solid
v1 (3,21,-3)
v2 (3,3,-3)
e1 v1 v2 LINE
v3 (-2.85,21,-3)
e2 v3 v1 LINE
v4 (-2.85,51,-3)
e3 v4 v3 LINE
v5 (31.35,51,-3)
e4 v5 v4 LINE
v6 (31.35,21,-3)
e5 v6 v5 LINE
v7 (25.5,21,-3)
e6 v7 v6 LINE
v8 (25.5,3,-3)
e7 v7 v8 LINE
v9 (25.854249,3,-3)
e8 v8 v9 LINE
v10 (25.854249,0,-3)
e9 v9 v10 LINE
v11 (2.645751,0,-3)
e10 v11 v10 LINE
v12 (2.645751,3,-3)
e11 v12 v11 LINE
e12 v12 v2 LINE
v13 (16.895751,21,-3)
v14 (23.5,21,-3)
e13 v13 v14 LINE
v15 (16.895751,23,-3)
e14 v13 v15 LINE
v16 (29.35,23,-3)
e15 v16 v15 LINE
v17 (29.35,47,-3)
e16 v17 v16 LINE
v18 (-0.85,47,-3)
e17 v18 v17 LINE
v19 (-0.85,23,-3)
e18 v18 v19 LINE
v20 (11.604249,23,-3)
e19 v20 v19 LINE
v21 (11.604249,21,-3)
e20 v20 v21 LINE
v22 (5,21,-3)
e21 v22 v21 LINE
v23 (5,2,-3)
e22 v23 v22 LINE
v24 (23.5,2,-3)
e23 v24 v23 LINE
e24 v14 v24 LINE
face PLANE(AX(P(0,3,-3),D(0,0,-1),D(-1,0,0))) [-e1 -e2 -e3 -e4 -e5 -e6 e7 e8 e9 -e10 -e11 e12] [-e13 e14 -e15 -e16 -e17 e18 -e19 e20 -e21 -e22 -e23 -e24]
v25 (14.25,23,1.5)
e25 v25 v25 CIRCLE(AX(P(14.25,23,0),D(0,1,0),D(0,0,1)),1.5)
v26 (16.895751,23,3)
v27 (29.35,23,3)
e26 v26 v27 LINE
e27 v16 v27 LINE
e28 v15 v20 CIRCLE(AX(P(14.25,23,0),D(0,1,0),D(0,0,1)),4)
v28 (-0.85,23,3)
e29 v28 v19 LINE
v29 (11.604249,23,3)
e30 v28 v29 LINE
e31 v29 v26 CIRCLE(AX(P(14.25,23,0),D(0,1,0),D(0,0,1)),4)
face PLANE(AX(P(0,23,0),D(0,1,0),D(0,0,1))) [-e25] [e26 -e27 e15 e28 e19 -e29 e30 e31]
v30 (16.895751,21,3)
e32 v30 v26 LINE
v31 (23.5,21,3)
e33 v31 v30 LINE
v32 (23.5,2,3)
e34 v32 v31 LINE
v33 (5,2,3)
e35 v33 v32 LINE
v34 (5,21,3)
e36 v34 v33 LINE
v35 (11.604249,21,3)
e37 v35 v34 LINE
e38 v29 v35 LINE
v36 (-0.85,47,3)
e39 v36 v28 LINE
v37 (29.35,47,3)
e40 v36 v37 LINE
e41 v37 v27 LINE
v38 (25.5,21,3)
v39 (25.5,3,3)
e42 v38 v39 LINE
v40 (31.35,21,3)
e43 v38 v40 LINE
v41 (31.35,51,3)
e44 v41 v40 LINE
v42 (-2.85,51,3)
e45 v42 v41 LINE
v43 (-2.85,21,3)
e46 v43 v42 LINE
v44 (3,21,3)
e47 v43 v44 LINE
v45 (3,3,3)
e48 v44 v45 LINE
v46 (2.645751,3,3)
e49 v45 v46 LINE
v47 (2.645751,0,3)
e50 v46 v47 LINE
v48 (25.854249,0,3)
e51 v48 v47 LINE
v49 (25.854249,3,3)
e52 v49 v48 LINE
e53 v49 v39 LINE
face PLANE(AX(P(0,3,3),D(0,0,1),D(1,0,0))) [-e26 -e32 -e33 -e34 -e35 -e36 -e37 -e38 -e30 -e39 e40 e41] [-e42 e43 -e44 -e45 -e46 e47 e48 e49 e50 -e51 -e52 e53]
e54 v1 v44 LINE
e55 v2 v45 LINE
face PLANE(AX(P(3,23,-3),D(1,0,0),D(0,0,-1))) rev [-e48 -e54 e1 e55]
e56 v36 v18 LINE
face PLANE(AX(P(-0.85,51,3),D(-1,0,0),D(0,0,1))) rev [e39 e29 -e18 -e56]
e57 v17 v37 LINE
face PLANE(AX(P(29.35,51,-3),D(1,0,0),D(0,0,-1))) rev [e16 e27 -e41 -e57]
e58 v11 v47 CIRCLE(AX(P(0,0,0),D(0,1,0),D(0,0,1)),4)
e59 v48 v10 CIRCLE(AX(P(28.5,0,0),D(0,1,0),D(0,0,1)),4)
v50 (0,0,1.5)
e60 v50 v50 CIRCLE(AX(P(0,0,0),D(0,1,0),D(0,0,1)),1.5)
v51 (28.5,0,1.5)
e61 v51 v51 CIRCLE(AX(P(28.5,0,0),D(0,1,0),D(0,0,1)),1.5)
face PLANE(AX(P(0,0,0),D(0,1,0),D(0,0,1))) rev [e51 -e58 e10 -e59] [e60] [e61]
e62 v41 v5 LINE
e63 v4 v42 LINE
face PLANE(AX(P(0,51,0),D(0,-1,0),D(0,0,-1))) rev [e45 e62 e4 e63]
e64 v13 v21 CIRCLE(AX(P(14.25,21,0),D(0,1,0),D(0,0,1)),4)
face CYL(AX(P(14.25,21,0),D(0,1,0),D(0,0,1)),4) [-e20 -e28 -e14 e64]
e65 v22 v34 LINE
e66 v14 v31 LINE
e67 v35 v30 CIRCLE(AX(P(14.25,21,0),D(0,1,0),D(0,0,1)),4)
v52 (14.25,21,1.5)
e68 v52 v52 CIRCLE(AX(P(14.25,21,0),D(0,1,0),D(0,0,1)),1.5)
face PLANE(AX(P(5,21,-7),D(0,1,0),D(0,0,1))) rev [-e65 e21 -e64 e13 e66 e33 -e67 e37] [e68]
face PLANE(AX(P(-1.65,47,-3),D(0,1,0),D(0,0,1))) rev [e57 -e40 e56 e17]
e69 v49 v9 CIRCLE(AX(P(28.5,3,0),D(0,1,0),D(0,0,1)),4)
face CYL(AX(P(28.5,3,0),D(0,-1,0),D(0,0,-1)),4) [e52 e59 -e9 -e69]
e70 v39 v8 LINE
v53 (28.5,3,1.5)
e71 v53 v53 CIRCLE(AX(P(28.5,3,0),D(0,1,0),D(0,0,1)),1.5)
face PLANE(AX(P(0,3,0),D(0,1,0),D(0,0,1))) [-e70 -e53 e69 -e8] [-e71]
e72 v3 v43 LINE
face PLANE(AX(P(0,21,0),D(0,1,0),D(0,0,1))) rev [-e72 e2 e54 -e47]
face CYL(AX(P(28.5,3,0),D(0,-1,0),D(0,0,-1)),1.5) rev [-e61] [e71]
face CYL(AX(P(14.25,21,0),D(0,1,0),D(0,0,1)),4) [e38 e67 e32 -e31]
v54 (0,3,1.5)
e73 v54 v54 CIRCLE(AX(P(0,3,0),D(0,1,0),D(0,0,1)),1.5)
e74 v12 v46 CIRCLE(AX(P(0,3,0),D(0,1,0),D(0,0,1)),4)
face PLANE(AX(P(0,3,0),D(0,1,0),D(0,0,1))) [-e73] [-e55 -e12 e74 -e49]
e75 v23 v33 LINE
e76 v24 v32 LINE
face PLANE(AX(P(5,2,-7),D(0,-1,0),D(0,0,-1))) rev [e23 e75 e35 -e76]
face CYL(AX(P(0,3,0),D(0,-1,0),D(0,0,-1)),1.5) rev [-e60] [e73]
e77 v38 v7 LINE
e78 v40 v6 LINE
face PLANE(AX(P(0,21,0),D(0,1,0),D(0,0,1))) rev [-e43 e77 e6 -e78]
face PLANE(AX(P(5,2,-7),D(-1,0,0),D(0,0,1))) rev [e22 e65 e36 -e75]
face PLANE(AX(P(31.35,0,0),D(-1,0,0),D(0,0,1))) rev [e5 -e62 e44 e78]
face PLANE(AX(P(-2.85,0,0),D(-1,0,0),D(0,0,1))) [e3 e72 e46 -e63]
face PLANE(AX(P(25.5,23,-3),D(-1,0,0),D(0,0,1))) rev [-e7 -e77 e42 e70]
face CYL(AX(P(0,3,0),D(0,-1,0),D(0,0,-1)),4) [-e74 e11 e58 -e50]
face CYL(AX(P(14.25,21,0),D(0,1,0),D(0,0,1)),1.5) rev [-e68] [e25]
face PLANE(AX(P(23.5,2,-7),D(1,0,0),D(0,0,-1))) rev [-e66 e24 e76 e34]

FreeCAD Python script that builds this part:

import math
import FreeCAD as App
import Part
import Sketcher

V = App.Vector

doc = App.newDocument("Part")
body = doc.addObject("PartDesign::Body", "Body")

sketch1 = doc.addObject("Sketcher::SketchObject", "Sketch")
body.addObject(sketch1)
sketch1.AttachmentSupport = (doc.XZ_Plane, [""])
sketch1.MapMode = "FlatFace"
sketch1.addGeometry([
    Part.LineSegment(V(25.9, -3, 0), V(2.6, -3, 0)),
    Part.ArcOfCircle(Part.Circle(V(0, 0, 0), V(0, 0, 1), 4), math.radians(49), math.radians(311)),
    Part.LineSegment(V(2.6, 3, 0), V(25.9, 3, 0)),
    Part.ArcOfCircle(Part.Circle(V(28.5, 0, 0), V(0, 0, 1), 4), math.radians(-131), math.radians(131)),
    Part.Circle(V(28.5, 0, 0), V(0, 0, 1), 1.5),
    Part.Circle(V(0, 0, 0), V(0, 0, 1), 1.5),
], False)
sketch1.addConstraint([
    Sketcher.Constraint("Coincident", 0, 2, 1, 2),
    Sketcher.Constraint("Coincident", 1, 1, 2, 1),
    Sketcher.Constraint("Coincident", 2, 2, 3, 2),
    Sketcher.Constraint("Coincident", 3, 1, 0, 1),
    Sketcher.Constraint("Horizontal", 0),
    Sketcher.Constraint("Horizontal", 2),
    Sketcher.Constraint("Coincident", 1, 3, -1, 1),
    Sketcher.Constraint("Coincident", 5, 3, -1, 1),
    Sketcher.Constraint("Coincident", 4, 3, 3, 3),
    Sketcher.Constraint("Equal", 1, 3),
    Sketcher.Constraint("Equal", 4, 5),
    Sketcher.Constraint("Symmetric", 2, 2, 3, 1, -1),
    Sketcher.Constraint("Diameter", 4, 3.0),
    Sketcher.Constraint("Radius", 1, 4.0),
    Sketcher.Constraint("DistanceY", 0, 2, -1, 1, 3.0),
    Sketcher.Constraint("DistanceX", -1, 1, 3, 3, 28.5),
])
pad1 = doc.addObject("PartDesign::Pad", "Pad")
body.addObject(pad1)
pad1.Profile = sketch1
pad1.Length = 3
pad1.Reversed = True

sketch2 = doc.addObject("Sketcher::SketchObject", "Sketch001")
body.addObject(sketch2)
sketch2.AttachmentSupport = (doc.XZ_Plane, [""])
sketch2.MapMode = "FlatFace"
sketch2.AttachmentOffset = App.Placement(V(0, 0, -3), App.Rotation())
sketch2.addGeometry([
    Part.LineSegment(V(3, -3, 0), V(3, 3, 0)),
    Part.LineSegment(V(3, 3, 0), V(26, 3, 0)),
    Part.LineSegment(V(26, 3, 0), V(26, -3, 0)),
    Part.LineSegment(V(26, -3, 0), V(3, -3, 0)),
], False)
sketch2.addConstraint([
    Sketcher.Constraint("Coincident", 0, 2, 1, 1),
    Sketcher.Constraint("Coincident", 1, 2, 2, 1),
    Sketcher.Constraint("Coincident", 2, 2, 3, 1),
    Sketcher.Constraint("Coincident", 3, 2, 0, 1),
    Sketcher.Constraint("Vertical", 0),
    Sketcher.Constraint("Horizontal", 1),
    Sketcher.Constraint("Vertical", 2),
    Sketcher.Constraint("Horizontal", 3),
    Sketcher.Constraint("DistanceY", 0, 1, 0, 2, 6.0),
    Sketcher.Constraint("DistanceX", 1, 1, 1, 2, 22.5),
    Sketcher.Constraint("DistanceX", -1, 1, 0, 2, 3.0),
    Sketcher.Constraint("DistanceY", -1, 1, 0, 2, 3.0),
])
pad2 = doc.addObject("PartDesign::Pad", "Pad001")
body.addObject(pad2)
pad2.Profile = sketch2
pad2.Length = 20
pad2.Reversed = True

sketch3 = doc.addObject("Sketcher::SketchObject", "Sketch002")
body.addObject(sketch3)
sketch3.AttachmentSupport = (doc.XY_Plane, [""])
sketch3.MapMode = "FlatFace"
sketch3.AttachmentOffset = App.Placement(V(0, 0, 3), App.Rotation())
sketch3.addGeometry([
    Part.LineSegment(V(5, 21, 0), V(5, 2, 0)),
    Part.LineSegment(V(5, 2, 0), V(24, 2, 0)),
    Part.LineSegment(V(24, 2, 0), V(24, 21, 0)),
    Part.LineSegment(V(24, 21, 0), V(5, 21, 0)),
], False)
sketch3.addConstraint([
    Sketcher.Constraint("Coincident", 0, 2, 1, 1),
    Sketcher.Constraint("Coincident", 1, 2, 2, 1),
    Sketcher.Constraint("Coincident", 2, 2, 3, 1),
    Sketcher.Constraint("Coincident", 3, 2, 0, 1),
    Sketcher.Constraint("Vertical", 0),
    Sketcher.Constraint("Horizontal", 1),
    Sketcher.Constraint("Vertical", 2),
    Sketcher.Constraint("Horizontal", 3),
    Sketcher.Constraint("DistanceY", 0, 2, 0, 1, 19.0),
    Sketcher.Constraint("DistanceX", 1, 1, 1, 2, 18.5),
    Sketcher.Constraint("DistanceX", -1, 1, 0, 2, 5.0),
    Sketcher.Constraint("DistanceY", -1, 1, 0, 2, 2.0),
])
pocket1 = doc.addObject("PartDesign::Pocket", "Pocket")
body.addObject(pocket1)
pocket1.Profile = sketch3
pocket1.Length = 10

sketch4 = doc.addObject("Sketcher::SketchObject", "Sketch003")
body.addObject(sketch4)
sketch4.AttachmentSupport = (doc.XZ_Plane, [""])
sketch4.MapMode = "FlatFace"
sketch4.AttachmentOffset = App.Placement(V(0, 0, -23), App.Rotation())
sketch4.addGeometry([
    Part.LineSegment(V(11.6, -3, 0), V(16.9, -3, 0)),
    Part.ArcOfCircle(Part.Circle(V(14.2, 0, 0), V(0, 0, 1), 4), math.radians(-131), math.radians(-49)),
    Part.LineSegment(V(25.5, -3, 0), V(25.5, 3, 0)),
    Part.LineSegment(V(25.5, 3, 0), V(29.4, 3, 0)),
    Part.LineSegment(V(29.4, 3, 0), V(29.4, -3, 0)),
    Part.LineSegment(V(29.4, -3, 0), V(25.5, -3, 0)),
    Part.LineSegment(V(-0.8, -3, 0), V(-0.8, 3, 0)),
    Part.LineSegment(V(-0.8, 3, 0), V(3, 3, 0)),
    Part.LineSegment(V(3, 3, 0), V(3, -3, 0)),
    Part.LineSegment(V(3, -3, 0), V(-0.8, -3, 0)),
    Part.ArcOfCircle(Part.Circle(V(14.2, 0, 0), V(0, 0, 1), 4), math.radians(49), math.radians(131)),
    Part.LineSegment(V(16.9, 3, 0), V(11.6, 3, 0)),
], False)
sketch4.addConstraint([
    Sketcher.Constraint("Coincident", 0, 1, 1, 1),
    Sketcher.Constraint("Coincident", 1, 2, 0, 2),
    Sketcher.Constraint("Coincident", 2, 2, 3, 1),
    Sketcher.Constraint("Coincident", 3, 2, 4, 1),
    Sketcher.Constraint("Coincident", 4, 2, 5, 1),
    Sketcher.Constraint("Coincident", 5, 2, 2, 1),
    Sketcher.Constraint("Coincident", 6, 2, 7, 1),
    Sketcher.Constraint("Coincident", 7, 2, 8, 1),
    Sketcher.Constraint("Coincident", 8, 2, 9, 1),
    Sketcher.Constraint("Coincident", 9, 2, 6, 1),
    Sketcher.Constraint("Coincident", 10, 1, 11, 1),
    Sketcher.Constraint("Coincident", 11, 2, 10, 2),
    Sketcher.Constraint("Horizontal", 0),
    Sketcher.Constraint("Vertical", 2),
    Sketcher.Constraint("Horizontal", 3),
    Sketcher.Constraint("Vertical", 4),
    Sketcher.Constraint("Horizontal", 5),
    Sketcher.Constraint("Vertical", 6),
    Sketcher.Constraint("Horizontal", 7),
    Sketcher.Constraint("Vertical", 8),
    Sketcher.Constraint("Horizontal", 9),
    Sketcher.Constraint("Horizontal", 11),
    Sketcher.Constraint("Coincident", 10, 3, 1, 3),
    Sketcher.Constraint("Equal", 1, 10),
    Sketcher.Constraint("Symmetric", 1, 2, 10, 1, -1),
    Sketcher.Constraint("Horizontal", 1, 2, 4, 2),
    Sketcher.Constraint("Horizontal", 3, 2, 6, 2),
    Sketcher.Constraint("Horizontal", 5, 2, 8, 2),
    Sketcher.Constraint("Horizontal", 7, 2, 10, 1),
    Sketcher.Constraint("Equal", 5, 7),
    Sketcher.Constraint("Radius", 1, 4.0),
    Sketcher.Constraint("DistanceY", 2, 1, 2, 2, 6.0),
    Sketcher.Constraint("DistanceX", -1, 1, 7, 2, 3.0),
    Sketcher.Constraint("DistanceX", 3, 1, 3, 2, 3.85),
    Sketcher.Constraint("DistanceX", -1, 1, 2, 2, 25.5),
    Sketcher.Constraint("DistanceX", 1, 3, 3, 2, 15.1),
])
pad3 = doc.addObject("PartDesign::Pad", "Pad002")
body.addObject(pad3)
pad3.Profile = sketch4
pad3.Length = 2

sketch5 = doc.addObject("Sketcher::SketchObject", "Sketch004")
body.addObject(sketch5)
sketch5.AttachmentSupport = (doc.XZ_Plane, [""])
sketch5.MapMode = "FlatFace"
sketch5.AttachmentOffset = App.Placement(V(0, 0, -23), App.Rotation())
sketch5.addGeometry(Part.Circle(V(14.2, 0, 0), V(0, 0, 1), 1.5), False)
sketch5.addConstraint([
    Sketcher.Constraint("PointOnObject", 0, 3, -1),
    Sketcher.Constraint("Diameter", 0, 3.0),
    Sketcher.Constraint("DistanceX", -1, 1, 0, 3, 14.25),
])
pocket2 = doc.addObject("PartDesign::Pocket", "Pocket001")
body.addObject(pocket2)
pocket2.Profile = sketch5
pocket2.Length = 2
pocket2.Reversed = True

sketch6 = doc.addObject("Sketcher::SketchObject", "Sketch005")
body.addObject(sketch6)
sketch6.AttachmentSupport = (doc.YZ_Plane, [""])
sketch6.MapMode = "FlatFace"
sketch6.AttachmentOffset = App.Placement(V(0, 0, -0.85), App.Rotation())
sketch6.addGeometry([
    Part.LineSegment(V(23, -3, 0), V(21, -3, 0)),
    Part.LineSegment(V(21, -3, 0), V(21, 3, 0)),
    Part.LineSegment(V(21, 3, 0), V(23, 3, 0)),
    Part.LineSegment(V(23, 3, 0), V(23, -3, 0)),
], False)
sketch6.addConstraint([
    Sketcher.Constraint("Coincident", 0, 2, 1, 1),
    Sketcher.Constraint("Coincident", 1, 2, 2, 1),
    Sketcher.Constraint("Coincident", 2, 2, 3, 1),
    Sketcher.Constraint("Coincident", 3, 2, 0, 1),
    Sketcher.Constraint("Horizontal", 0),
    Sketcher.Constraint("Vertical", 1),
    Sketcher.Constraint("Horizontal", 2),
    Sketcher.Constraint("Vertical", 3),
    Sketcher.Constraint("DistanceX", 0, 2, 0, 1, 2.0),
    Sketcher.Constraint("DistanceY", 1, 1, 1, 2, 6.0),
    Sketcher.Constraint("DistanceX", -1, 1, 0, 2, 21.0),
    Sketcher.Constraint("DistanceY", 0, 2, -1, 1, 3.0),
])
pad4 = doc.addObject("PartDesign::Pad", "Pad003")
body.addObject(pad4)
pad4.Profile = sketch6
pad4.Length = 2
pad4.Reversed = True

sketch7 = doc.addObject("Sketcher::SketchObject", "Sketch006")
body.addObject(sketch7)
sketch7.AttachmentSupport = (doc.XZ_Plane, [""])
sketch7.MapMode = "FlatFace"
sketch7.AttachmentOffset = App.Placement(V(0, 0, -23), App.Rotation())
sketch7.addGeometry([
    Part.LineSegment(V(-2.9, -3, 0), V(-2.9, 3, 0)),
    Part.LineSegment(V(-2.9, 3, 0), V(-0.8, 3, 0)),
    Part.LineSegment(V(-0.8, 3, 0), V(-0.8, -3, 0)),
    Part.LineSegment(V(-0.8, -3, 0), V(-2.9, -3, 0)),
], False)
sketch7.addConstraint([
    Sketcher.Constraint("Coincident", 0, 2, 1, 1),
    Sketcher.Constraint("Coincident", 1, 2, 2, 1),
    Sketcher.Constraint("Coincident", 2, 2, 3, 1),
    Sketcher.Constraint("Coincident", 3, 2, 0, 1),
    Sketcher.Constraint("Vertical", 0),
    Sketcher.Constraint("Horizontal", 1),
    Sketcher.Constraint("Vertical", 2),
    Sketcher.Constraint("Horizontal", 3),
    Sketcher.Constraint("DistanceX", 1, 1, 1, 2, 2.0),
    Sketcher.Constraint("DistanceY", 0, 1, 0, 2, 6.0),
    Sketcher.Constraint("DistanceY", -1, 1, 0, 2, 3.0),
    Sketcher.Constraint("DistanceX", 0, 2, -1, 1, 2.85),
])
pad5 = doc.addObject("PartDesign::Pad", "Pad004")
body.addObject(pad5)
pad5.Profile = sketch7
pad5.Length = 28
pad5.Reversed = True

sketch8 = doc.addObject("Sketcher::SketchObject", "Sketch007")
body.addObject(sketch8)
sketch8.AttachmentSupport = (doc.YZ_Plane, [""])
sketch8.MapMode = "FlatFace"
sketch8.AttachmentOffset = App.Placement(V(0, 0, 29.35), App.Rotation())
sketch8.addGeometry([
    Part.LineSegment(V(23, 3, 0), V(21, 3, 0)),
    Part.LineSegment(V(21, 3, 0), V(21, -3, 0)),
    Part.LineSegment(V(21, -3, 0), V(23, -3, 0)),
    Part.LineSegment(V(23, -3, 0), V(23, 3, 0)),
], False)
sketch8.addConstraint([
    Sketcher.Constraint("Coincident", 0, 2, 1, 1),
    Sketcher.Constraint("Coincident", 1, 2, 2, 1),
    Sketcher.Constraint("Coincident", 2, 2, 3, 1),
    Sketcher.Constraint("Coincident", 3, 2, 0, 1),
    Sketcher.Constraint("Horizontal", 0),
    Sketcher.Constraint("Vertical", 1),
    Sketcher.Constraint("Horizontal", 2),
    Sketcher.Constraint("Vertical", 3),
    Sketcher.Constraint("DistanceX", 0, 2, 0, 1, 2.0),
    Sketcher.Constraint("DistanceY", 1, 2, 1, 1, 6.0),
    Sketcher.Constraint("DistanceX", -1, 1, 0, 2, 21.0),
    Sketcher.Constraint("DistanceY", -1, 1, 0, 2, 3.0),
])
pad6 = doc.addObject("PartDesign::Pad", "Pad005")
body.addObject(pad6)
pad6.Profile = sketch8
pad6.Length = 2

sketch9 = doc.addObject("Sketcher::SketchObject", "Sketch008")
body.addObject(sketch9)
sketch9.AttachmentSupport = (doc.XZ_Plane, [""])
sketch9.MapMode = "FlatFace"
sketch9.AttachmentOffset = App.Placement(V(0, 0, -23), App.Rotation())
sketch9.addGeometry([
    Part.LineSegment(V(29.4, -3, 0), V(29.4, 3, 0)),
    Part.LineSegment(V(29.4, 3, 0), V(31.4, 3, 0)),
    Part.LineSegment(V(31.4, 3, 0), V(31.4, -3, 0)),
    Part.LineSegment(V(31.4, -3, 0), V(29.4, -3, 0)),
], False)
sketch9.addConstraint([
    Sketcher.Constraint("Coincident", 0, 2, 1, 1),
    Sketcher.Constraint("Coincident", 1, 2, 2, 1),
    Sketcher.Constraint("Coincident", 2, 2, 3, 1),
    Sketcher.Constraint("Coincident", 3, 2, 0, 1),
    Sketcher.Constraint("Vertical", 0),
    Sketcher.Constraint("Horizontal", 1),
    Sketcher.Constraint("Vertical", 2),
    Sketcher.Constraint("Horizontal", 3),
    Sketcher.Constraint("DistanceX", 1, 1, 1, 2, 2.0),
    Sketcher.Constraint("DistanceY", 0, 1, 0, 2, 6.0),
    Sketcher.Constraint("DistanceY", -1, 1, 0, 2, 3.0),
    Sketcher.Constraint("DistanceX", -1, 1, 0, 2, 29.35),
])
pad7 = doc.addObject("PartDesign::Pad", "Pad006")
body.addObject(pad7)
pad7.Profile = sketch9
pad7.Length = 28
pad7.Reversed = True

sketch10 = doc.addObject("Sketcher::SketchObject", "Sketch009")
body.addObject(sketch10)
sketch10.AttachmentSupport = (doc.YZ_Plane, [""])
sketch10.MapMode = "FlatFace"
sketch10.AttachmentOffset = App.Placement(V(0, 0, 29.35), App.Rotation())
sketch10.addGeometry([
    Part.LineSegment(V(51, -3, 0), V(47, -3, 0)),
    Part.LineSegment(V(47, -3, 0), V(47, 3, 0)),
    Part.LineSegment(V(47, 3, 0), V(51, 3, 0)),
    Part.LineSegment(V(51, 3, 0), V(51, -3, 0)),
], False)
sketch10.addConstraint([
    Sketcher.Constraint("Coincident", 0, 2, 1, 1),
    Sketcher.Constraint("Coincident", 1, 2, 2, 1),
    Sketcher.Constraint("Coincident", 2, 2, 3, 1),
    Sketcher.Constraint("Coincident", 3, 2, 0, 1),
    Sketcher.Constraint("Horizontal", 0),
    Sketcher.Constraint("Vertical", 1),
    Sketcher.Constraint("Horizontal", 2),
    Sketcher.Constraint("Vertical", 3),
    Sketcher.Constraint("DistanceX", 0, 2, 0, 1, 4.0),
    Sketcher.Constraint("DistanceY", 1, 1, 1, 2, 6.0),
    Sketcher.Constraint("DistanceX", -1, 1, 0, 2, 47.0),
    Sketcher.Constraint("DistanceY", 0, 2, -1, 1, 3.0),
])
pad8 = doc.addObject("PartDesign::Pad", "Pad007")
body.addObject(pad8)
pad8.Profile = sketch10
pad8.Length = 31
pad8.Reversed = True

doc.recompute()
